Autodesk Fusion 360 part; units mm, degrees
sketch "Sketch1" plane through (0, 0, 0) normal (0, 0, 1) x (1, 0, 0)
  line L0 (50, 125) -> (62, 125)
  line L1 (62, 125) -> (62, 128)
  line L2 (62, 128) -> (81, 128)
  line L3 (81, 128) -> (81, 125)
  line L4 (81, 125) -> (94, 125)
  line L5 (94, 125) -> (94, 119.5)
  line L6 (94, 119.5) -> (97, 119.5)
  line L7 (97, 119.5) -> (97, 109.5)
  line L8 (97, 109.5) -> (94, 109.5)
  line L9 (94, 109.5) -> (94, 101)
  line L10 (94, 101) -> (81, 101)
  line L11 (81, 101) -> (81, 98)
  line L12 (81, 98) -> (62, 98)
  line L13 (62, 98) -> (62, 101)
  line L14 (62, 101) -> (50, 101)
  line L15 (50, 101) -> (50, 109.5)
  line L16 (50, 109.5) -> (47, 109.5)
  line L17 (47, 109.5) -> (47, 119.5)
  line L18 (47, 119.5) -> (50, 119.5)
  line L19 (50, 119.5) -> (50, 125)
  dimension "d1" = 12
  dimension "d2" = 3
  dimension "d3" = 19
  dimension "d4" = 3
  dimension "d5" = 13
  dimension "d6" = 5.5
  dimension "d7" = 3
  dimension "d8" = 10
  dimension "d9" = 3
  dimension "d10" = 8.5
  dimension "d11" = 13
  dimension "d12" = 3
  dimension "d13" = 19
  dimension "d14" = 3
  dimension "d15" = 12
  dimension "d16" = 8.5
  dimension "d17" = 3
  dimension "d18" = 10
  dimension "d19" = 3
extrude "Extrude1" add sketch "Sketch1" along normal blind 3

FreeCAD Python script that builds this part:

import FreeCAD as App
import Part
import Sketcher

V = App.Vector
Q = App.Units.Quantity


def add_polygon(sketch, points):
    """Adds a closed chain of lines whose ends are joined by coincident constraints."""
    first, n = sketch.GeometryCount, len(points)
    for a, b in zip(points, points[1:] + points[:1]):
        sketch.addGeometry(Part.LineSegment(App.Vector(*a, 0), App.Vector(*b, 0)), False)
    for i in range(n):
        sketch.addConstraint(Sketcher.Constraint("Coincident", first + i, 2, first + (i + 1) % n, 1))

doc = App.newDocument("Part")
params = doc.addObject("Spreadsheet::Sheet", "Params")
for row, (alias, value) in enumerate([
    ("sketch1_width", "12 mm"),
    ("sketch1_width2", "3 mm"),
    ("sketch1_width3", "19 mm"),
    ("sketch1_width4", "13 mm"),
    ("sketch1_height", "10 mm"),
    ("pad1_length", "3 mm"),
], start=1):
    params.set(f"A{row}", alias)
    params.set(f"B{row}", "=" + value)
    params.setAlias(f"B{row}", alias)

body = doc.addObject("PartDesign::Body", "Body")

# Sketch on XY plane
sketch1 = body.newObject("Sketcher::SketchObject", "Sketch")
sketch1.AttachmentSupport = (doc.getObject("XY_Plane"), [""])
sketch1.MapMode = "FlatFace"
add_polygon(sketch1, [(62, 125), (50, 125), (50, 119.5), (47, 119.5), (47, 109.5), (50, 109.5), (50, 101), (62, 101), (62, 98), (81, 98), (81, 101), (94, 101), (94, 109.5), (97, 109.5), (97, 119.5), (94, 119.5), (94, 125), (81, 125), (81, 128), (62, 128)])  # lines 0-19
sketch1.addConstraint([
    Sketcher.Constraint("Horizontal", 0),
    Sketcher.Constraint("Vertical", 1),
    Sketcher.Constraint("Horizontal", 2),
    Sketcher.Constraint("Vertical", 3),
    Sketcher.Constraint("Horizontal", 4),
    Sketcher.Constraint("Vertical", 5),
    Sketcher.Constraint("Horizontal", 6),
    Sketcher.Constraint("Vertical", 7),
    Sketcher.Constraint("Horizontal", 8),
    Sketcher.Constraint("Vertical", 9),
    Sketcher.Constraint("Horizontal", 10),
    Sketcher.Constraint("Vertical", 11),
    Sketcher.Constraint("Horizontal", 12),
    Sketcher.Constraint("Vertical", 13),
    Sketcher.Constraint("Horizontal", 14),
    Sketcher.Constraint("Vertical", 15),
    Sketcher.Constraint("Horizontal", 16),
    Sketcher.Constraint("Vertical", 17),
    Sketcher.Constraint("Horizontal", 18),
    Sketcher.Constraint("Vertical", 19),
    Sketcher.Constraint("Horizontal", 6, 2, 9, 2),
    Sketcher.Constraint("Horizontal", 4, 2, 11, 2),
    Sketcher.Constraint("Horizontal", 2, 2, 13, 2),
    Sketcher.Constraint("Horizontal", 0, 2, 15, 2),
    Sketcher.Constraint("Vertical", 1, 2, 4, 2),
    Sketcher.Constraint("Vertical", 11, 2, 14, 2),
    Sketcher.Constraint("Vertical", 9, 2, 16, 2),
    Sketcher.Constraint("Vertical", 7, 2, 18, 2),
    Sketcher.Constraint("Equal", 4, 12),
    Sketcher.Constraint("Equal", 14, 7),
    Sketcher.Constraint("Equal", 9, 17),
    Sketcher.Constraint("DistanceX", 0, 2, 0, 1, Q("12 mm")),
    Sketcher.Constraint("DistanceX", 2, 2, 2, 1, Q("3 mm")),
    Sketcher.Constraint("DistanceX", 8, 1, 8, 2, Q("19 mm")),
    Sketcher.Constraint("DistanceX", 10, 1, 10, 2, Q("13 mm")),
    Sketcher.Constraint("DistanceY", 3, 2, 3, 1, Q("10 mm")),
    Sketcher.Constraint("DistanceY", 1, 2, 1, 1, Q("5.5 mm")),
    Sketcher.Constraint("DistanceY", 5, 2, 5, 1, Q("8.5 mm")),
    Sketcher.Constraint("DistanceX", -1, 1, 0, 2, Q("50 mm")),
    Sketcher.Constraint("DistanceY", -1, 1, 0, 2, Q("125 mm")),
])
sketch1.setExpression("Constraints[51]", "Params.sketch1_width")
sketch1.setExpression("Constraints[52]", "Params.sketch1_width2")
sketch1.setExpression("Constraints[53]", "Params.sketch1_width3")
sketch1.setExpression("Constraints[54]", "Params.sketch1_width4")
sketch1.setExpression("Constraints[55]", "Params.sketch1_height")
pad1 = body.newObject("PartDesign::Pad", "Pad")
pad1.Profile = sketch1
pad1.setExpression("Length", "Params.pad1_length")

doc.recompute()
